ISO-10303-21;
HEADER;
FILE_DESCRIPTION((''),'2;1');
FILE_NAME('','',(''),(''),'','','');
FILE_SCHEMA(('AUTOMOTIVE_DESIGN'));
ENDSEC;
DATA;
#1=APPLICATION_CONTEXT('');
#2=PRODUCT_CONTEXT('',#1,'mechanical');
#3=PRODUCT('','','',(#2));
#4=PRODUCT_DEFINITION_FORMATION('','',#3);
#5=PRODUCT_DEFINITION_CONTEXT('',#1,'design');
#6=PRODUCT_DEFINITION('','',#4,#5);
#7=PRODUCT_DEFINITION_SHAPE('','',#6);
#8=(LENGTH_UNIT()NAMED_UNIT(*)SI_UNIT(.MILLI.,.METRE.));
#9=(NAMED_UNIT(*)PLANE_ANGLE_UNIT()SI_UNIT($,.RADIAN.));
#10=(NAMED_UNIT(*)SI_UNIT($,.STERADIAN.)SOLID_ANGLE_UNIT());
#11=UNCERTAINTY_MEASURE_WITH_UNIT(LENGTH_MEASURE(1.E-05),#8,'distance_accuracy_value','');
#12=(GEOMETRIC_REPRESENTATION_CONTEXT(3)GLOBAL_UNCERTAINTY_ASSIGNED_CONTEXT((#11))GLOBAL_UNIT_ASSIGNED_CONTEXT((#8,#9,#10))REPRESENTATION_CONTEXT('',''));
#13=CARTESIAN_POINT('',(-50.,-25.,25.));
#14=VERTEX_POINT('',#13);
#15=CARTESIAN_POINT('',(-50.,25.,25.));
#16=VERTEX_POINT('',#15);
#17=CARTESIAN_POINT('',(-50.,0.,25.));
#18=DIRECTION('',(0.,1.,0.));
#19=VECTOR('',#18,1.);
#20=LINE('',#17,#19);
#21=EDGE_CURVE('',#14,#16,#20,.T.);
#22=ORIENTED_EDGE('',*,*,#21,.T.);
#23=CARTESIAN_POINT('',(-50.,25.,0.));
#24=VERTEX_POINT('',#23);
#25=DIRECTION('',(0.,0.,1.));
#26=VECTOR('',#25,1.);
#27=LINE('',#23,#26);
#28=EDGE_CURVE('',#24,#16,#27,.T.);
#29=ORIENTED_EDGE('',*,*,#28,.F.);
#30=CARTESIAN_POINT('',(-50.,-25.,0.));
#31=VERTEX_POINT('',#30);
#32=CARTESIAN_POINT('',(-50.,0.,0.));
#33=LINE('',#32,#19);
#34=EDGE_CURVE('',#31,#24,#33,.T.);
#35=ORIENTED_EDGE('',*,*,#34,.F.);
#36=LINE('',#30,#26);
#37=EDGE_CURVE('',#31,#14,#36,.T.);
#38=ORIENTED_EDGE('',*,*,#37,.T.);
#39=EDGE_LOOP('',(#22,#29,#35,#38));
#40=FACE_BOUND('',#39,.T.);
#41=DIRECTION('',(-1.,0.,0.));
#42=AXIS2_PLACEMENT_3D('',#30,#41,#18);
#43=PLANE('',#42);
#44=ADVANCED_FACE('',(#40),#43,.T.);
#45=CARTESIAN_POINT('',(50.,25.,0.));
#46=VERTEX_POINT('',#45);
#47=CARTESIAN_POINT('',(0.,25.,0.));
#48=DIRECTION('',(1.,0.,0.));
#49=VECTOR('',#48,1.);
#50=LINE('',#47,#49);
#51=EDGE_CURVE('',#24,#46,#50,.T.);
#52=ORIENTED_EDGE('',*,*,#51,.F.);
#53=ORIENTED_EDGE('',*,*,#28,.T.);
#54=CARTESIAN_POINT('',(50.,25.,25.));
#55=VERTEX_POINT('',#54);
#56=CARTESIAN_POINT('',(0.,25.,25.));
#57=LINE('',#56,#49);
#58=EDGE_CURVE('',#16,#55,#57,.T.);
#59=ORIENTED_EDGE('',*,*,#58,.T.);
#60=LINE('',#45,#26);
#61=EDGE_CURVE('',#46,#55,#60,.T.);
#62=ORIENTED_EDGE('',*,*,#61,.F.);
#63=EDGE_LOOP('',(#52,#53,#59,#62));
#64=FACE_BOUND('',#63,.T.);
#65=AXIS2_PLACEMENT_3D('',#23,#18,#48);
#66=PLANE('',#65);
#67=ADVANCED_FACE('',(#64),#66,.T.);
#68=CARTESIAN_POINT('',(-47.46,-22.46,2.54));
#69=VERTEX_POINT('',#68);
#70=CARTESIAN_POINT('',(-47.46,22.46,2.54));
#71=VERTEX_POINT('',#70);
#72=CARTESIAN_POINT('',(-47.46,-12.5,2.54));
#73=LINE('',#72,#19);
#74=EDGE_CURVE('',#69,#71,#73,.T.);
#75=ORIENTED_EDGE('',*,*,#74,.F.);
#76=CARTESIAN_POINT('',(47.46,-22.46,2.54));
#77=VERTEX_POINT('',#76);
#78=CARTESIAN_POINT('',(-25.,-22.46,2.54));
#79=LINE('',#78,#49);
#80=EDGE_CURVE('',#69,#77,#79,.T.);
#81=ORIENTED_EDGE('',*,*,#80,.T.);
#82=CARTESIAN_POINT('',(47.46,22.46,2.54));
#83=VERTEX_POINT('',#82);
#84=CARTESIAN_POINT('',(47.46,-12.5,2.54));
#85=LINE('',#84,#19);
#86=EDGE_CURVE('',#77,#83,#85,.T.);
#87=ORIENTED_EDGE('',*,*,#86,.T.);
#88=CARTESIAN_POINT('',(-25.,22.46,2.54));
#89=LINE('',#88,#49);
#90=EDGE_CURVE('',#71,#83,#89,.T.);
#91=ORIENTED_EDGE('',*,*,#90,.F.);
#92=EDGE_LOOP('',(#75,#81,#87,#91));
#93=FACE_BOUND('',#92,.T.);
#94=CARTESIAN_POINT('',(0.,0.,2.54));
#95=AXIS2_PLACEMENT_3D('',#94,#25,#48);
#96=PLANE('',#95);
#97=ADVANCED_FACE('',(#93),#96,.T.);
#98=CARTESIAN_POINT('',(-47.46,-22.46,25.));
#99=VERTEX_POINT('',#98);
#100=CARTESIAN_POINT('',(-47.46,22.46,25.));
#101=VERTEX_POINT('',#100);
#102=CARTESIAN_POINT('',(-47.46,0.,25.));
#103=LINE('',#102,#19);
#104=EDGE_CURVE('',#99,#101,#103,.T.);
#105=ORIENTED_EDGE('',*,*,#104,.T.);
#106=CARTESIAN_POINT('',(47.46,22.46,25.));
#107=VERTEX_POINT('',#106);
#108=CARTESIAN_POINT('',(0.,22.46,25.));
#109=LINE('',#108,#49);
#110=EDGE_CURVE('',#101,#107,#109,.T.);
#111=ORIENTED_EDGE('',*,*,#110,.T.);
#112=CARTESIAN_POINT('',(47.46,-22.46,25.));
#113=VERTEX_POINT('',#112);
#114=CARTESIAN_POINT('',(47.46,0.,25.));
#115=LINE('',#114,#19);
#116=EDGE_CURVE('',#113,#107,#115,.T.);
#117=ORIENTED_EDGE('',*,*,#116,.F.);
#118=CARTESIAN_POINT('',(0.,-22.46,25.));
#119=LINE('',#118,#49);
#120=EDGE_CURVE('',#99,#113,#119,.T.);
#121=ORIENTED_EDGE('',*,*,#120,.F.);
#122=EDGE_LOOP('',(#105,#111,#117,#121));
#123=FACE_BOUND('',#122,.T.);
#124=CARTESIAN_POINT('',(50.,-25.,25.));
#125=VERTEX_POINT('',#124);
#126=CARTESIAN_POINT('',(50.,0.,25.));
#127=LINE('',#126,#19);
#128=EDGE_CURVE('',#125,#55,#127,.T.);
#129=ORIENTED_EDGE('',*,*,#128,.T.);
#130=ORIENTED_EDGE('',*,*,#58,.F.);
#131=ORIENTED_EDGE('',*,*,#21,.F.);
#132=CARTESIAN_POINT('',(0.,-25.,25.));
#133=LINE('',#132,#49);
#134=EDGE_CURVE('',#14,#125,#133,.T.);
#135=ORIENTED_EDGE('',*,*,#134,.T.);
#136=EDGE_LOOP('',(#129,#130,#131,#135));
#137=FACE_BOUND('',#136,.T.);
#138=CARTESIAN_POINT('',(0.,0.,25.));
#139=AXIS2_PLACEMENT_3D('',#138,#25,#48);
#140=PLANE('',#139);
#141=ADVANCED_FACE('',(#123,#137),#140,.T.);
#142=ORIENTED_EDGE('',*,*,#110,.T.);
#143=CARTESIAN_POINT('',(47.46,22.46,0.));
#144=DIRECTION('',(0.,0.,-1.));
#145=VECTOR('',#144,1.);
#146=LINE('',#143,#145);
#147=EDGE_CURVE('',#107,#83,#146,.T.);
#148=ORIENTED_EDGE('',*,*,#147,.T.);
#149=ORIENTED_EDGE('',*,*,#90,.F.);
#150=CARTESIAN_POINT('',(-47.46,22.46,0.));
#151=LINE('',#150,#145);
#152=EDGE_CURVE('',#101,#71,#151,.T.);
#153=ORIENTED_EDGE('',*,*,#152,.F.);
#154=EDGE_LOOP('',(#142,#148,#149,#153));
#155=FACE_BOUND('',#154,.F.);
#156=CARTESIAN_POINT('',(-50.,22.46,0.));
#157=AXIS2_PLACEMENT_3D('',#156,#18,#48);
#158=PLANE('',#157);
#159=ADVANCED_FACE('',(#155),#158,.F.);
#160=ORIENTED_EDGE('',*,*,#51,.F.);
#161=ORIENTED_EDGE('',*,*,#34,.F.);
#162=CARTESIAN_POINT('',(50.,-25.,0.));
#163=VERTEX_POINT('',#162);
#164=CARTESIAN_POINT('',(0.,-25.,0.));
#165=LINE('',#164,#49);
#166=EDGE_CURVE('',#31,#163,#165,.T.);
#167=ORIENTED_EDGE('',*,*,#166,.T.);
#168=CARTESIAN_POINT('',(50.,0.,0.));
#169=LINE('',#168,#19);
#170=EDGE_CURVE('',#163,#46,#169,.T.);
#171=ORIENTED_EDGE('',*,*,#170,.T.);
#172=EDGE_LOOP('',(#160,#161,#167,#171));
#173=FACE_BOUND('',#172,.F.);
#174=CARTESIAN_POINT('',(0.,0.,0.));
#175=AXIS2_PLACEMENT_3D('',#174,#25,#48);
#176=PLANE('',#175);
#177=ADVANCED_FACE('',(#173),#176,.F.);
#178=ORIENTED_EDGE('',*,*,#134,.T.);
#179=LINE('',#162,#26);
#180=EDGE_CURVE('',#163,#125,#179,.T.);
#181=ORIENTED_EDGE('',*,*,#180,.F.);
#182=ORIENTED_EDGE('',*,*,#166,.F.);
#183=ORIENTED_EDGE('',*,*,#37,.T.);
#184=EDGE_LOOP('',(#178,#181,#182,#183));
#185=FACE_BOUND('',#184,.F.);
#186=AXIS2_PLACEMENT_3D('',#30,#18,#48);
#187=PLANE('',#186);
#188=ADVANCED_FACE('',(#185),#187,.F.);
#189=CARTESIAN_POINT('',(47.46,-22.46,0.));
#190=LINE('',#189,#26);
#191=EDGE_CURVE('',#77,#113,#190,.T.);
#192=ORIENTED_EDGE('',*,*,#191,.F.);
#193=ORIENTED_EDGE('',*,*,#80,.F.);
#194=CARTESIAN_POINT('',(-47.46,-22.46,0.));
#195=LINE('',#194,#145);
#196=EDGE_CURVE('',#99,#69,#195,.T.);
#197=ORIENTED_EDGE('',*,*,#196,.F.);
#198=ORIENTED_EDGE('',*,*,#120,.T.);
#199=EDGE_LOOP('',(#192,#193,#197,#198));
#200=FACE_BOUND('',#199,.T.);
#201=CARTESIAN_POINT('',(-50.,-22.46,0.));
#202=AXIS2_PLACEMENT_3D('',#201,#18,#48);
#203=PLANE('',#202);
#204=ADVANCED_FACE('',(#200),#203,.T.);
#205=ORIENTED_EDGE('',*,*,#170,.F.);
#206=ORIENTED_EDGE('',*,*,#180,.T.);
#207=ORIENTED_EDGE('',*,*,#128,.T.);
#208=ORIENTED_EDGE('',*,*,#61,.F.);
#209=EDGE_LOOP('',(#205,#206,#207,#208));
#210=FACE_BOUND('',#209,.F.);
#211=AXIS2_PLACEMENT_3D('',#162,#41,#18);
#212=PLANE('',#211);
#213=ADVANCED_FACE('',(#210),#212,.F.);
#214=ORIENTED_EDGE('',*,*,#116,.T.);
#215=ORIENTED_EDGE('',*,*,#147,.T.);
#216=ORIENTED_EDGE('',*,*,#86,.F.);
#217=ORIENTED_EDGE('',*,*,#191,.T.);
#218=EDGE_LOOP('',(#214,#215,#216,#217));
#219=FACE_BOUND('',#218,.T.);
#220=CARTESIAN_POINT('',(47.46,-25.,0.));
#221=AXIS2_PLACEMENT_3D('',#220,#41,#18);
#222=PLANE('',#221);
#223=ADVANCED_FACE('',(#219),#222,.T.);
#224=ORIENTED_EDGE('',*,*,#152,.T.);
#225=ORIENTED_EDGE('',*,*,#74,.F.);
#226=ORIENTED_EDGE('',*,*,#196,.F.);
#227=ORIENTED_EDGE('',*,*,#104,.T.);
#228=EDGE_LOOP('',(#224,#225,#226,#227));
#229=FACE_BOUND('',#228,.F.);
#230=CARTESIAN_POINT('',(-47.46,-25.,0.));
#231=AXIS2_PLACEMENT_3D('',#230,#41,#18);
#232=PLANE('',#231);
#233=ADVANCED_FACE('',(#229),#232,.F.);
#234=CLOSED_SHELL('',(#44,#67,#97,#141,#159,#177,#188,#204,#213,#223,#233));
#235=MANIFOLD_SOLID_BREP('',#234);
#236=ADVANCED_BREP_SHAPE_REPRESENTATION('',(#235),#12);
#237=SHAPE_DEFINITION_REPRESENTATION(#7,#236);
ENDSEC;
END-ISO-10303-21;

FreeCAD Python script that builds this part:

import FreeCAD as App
import Part
import Sketcher
from FreeCAD import Vector


def faces_at(feature, points):
    """Names of the faces that lie closest to the given points."""
    faces = feature.Shape.Faces
    near = lambda p: min(range(len(faces)), key=lambda i: faces[i].distToShape(Part.Vertex(*p))[0])
    return sorted({f"Face{near(p) + 1}" for p in points})

doc = App.newDocument("Part")
params = doc.addObject("Spreadsheet::Sheet", "Params")
for row, (alias, value) in enumerate([
    ("sketch1_width", "100 mm"),
    ("sketch1_height", "50 mm"),
    ("pad1_length", "25 mm"),
    ("thickness_wall", "2.54 mm"),
    ("pocket1_length", "25.4 mm"),
], start=1):
    params.set(f"A{row}", alias)
    params.set(f"B{row}", "=" + value)
    params.setAlias(f"B{row}", alias)

body = doc.addObject("PartDesign::Body", "Body")

sketch1 = body.newObject("Sketcher::SketchObject", "Sketch")
sketch1.AttachmentSupport = (doc.getObject("XY_Plane"), [""])
sketch1.MapMode = "FlatFace"
sketch1.addGeometry(Part.LineSegment(Vector(-50, 25, 0), Vector(-50, -25, 0)), False)
sketch1.addGeometry(Part.LineSegment(Vector(-50, -25, 0), Vector(50, -25, 0)), False)
sketch1.addGeometry(Part.LineSegment(Vector(50, -25, 0), Vector(50, 25, 0)), False)
sketch1.addGeometry(Part.LineSegment(Vector(50, 25, 0), Vector(-50, 25, 0)), False)
sketch1.addConstraint(Sketcher.Constraint("Coincident", 0, 2, 1, 1))
sketch1.addConstraint(Sketcher.Constraint("Coincident", 1, 2, 2, 1))
sketch1.addConstraint(Sketcher.Constraint("Coincident", 2, 2, 3, 1))
sketch1.addConstraint(Sketcher.Constraint("Coincident", 3, 2, 0, 1))
sketch1.addConstraint(Sketcher.Constraint("Vertical", 0))
sketch1.addConstraint(Sketcher.Constraint("Horizontal", 1))
sketch1.addConstraint(Sketcher.Constraint("Vertical", 2))
sketch1.addConstraint(Sketcher.Constraint("Horizontal", 3))
sketch1.addConstraint(Sketcher.Constraint("Symmetric", 0, 2, 2, 2, -1, 1))
sketch1.addConstraint(Sketcher.Constraint("DistanceX", 1, 1, 1, 2, 100.0))
sketch1.addConstraint(Sketcher.Constraint("DistanceY", 0, 2, 0, 1, 50.0))
sketch1.setExpression("Constraints[9]", "Params.sketch1_width")
sketch1.setExpression("Constraints[10]", "Params.sketch1_height")
pad1 = body.newObject("PartDesign::Pad", "Pad")
pad1.Profile = sketch1
pad1.setExpression("Length", "Params.pad1_length")
doc.recompute()

thickness = body.newObject("PartDesign::Thickness", "Thickness")
thickness.Base = (pad1, faces_at(pad1, [(0, 0, 25)]))
thickness.setExpression("Value", "Params.thickness_wall")
thickness.Reversed = True
thickness.Join = "Arc"

sketch2 = body.newObject("Sketcher::SketchObject", "Sketch001")
sketch2.AttachmentSupport = (doc.getObject("YZ_Plane"), [""])
sketch2.MapMode = "FlatFace"
sketch2.AttachmentOffset = App.Placement(Vector(0, 0, 50), App.Rotation())
sketch2.addGeometry(Part.Circle(Vector(0, 13, 0), Vector(0, 0, 1), 8), False)
sketch2.addConstraint(Sketcher.Constraint("PointOnObject", 0, 3, -2))
sketch2.addConstraint(Sketcher.Constraint("Diameter", 0, 15.749766))
sketch2.addConstraint(Sketcher.Constraint("DistanceY", -1, 1, 0, 3, 13.071434))
pocket1 = body.newObject("PartDesign::Pocket", "Pocket")
pocket1.Profile = sketch2
pocket1.setExpression("Length", "Params.pocket1_length")
pocket1.Reversed = True

doc.recompute()
